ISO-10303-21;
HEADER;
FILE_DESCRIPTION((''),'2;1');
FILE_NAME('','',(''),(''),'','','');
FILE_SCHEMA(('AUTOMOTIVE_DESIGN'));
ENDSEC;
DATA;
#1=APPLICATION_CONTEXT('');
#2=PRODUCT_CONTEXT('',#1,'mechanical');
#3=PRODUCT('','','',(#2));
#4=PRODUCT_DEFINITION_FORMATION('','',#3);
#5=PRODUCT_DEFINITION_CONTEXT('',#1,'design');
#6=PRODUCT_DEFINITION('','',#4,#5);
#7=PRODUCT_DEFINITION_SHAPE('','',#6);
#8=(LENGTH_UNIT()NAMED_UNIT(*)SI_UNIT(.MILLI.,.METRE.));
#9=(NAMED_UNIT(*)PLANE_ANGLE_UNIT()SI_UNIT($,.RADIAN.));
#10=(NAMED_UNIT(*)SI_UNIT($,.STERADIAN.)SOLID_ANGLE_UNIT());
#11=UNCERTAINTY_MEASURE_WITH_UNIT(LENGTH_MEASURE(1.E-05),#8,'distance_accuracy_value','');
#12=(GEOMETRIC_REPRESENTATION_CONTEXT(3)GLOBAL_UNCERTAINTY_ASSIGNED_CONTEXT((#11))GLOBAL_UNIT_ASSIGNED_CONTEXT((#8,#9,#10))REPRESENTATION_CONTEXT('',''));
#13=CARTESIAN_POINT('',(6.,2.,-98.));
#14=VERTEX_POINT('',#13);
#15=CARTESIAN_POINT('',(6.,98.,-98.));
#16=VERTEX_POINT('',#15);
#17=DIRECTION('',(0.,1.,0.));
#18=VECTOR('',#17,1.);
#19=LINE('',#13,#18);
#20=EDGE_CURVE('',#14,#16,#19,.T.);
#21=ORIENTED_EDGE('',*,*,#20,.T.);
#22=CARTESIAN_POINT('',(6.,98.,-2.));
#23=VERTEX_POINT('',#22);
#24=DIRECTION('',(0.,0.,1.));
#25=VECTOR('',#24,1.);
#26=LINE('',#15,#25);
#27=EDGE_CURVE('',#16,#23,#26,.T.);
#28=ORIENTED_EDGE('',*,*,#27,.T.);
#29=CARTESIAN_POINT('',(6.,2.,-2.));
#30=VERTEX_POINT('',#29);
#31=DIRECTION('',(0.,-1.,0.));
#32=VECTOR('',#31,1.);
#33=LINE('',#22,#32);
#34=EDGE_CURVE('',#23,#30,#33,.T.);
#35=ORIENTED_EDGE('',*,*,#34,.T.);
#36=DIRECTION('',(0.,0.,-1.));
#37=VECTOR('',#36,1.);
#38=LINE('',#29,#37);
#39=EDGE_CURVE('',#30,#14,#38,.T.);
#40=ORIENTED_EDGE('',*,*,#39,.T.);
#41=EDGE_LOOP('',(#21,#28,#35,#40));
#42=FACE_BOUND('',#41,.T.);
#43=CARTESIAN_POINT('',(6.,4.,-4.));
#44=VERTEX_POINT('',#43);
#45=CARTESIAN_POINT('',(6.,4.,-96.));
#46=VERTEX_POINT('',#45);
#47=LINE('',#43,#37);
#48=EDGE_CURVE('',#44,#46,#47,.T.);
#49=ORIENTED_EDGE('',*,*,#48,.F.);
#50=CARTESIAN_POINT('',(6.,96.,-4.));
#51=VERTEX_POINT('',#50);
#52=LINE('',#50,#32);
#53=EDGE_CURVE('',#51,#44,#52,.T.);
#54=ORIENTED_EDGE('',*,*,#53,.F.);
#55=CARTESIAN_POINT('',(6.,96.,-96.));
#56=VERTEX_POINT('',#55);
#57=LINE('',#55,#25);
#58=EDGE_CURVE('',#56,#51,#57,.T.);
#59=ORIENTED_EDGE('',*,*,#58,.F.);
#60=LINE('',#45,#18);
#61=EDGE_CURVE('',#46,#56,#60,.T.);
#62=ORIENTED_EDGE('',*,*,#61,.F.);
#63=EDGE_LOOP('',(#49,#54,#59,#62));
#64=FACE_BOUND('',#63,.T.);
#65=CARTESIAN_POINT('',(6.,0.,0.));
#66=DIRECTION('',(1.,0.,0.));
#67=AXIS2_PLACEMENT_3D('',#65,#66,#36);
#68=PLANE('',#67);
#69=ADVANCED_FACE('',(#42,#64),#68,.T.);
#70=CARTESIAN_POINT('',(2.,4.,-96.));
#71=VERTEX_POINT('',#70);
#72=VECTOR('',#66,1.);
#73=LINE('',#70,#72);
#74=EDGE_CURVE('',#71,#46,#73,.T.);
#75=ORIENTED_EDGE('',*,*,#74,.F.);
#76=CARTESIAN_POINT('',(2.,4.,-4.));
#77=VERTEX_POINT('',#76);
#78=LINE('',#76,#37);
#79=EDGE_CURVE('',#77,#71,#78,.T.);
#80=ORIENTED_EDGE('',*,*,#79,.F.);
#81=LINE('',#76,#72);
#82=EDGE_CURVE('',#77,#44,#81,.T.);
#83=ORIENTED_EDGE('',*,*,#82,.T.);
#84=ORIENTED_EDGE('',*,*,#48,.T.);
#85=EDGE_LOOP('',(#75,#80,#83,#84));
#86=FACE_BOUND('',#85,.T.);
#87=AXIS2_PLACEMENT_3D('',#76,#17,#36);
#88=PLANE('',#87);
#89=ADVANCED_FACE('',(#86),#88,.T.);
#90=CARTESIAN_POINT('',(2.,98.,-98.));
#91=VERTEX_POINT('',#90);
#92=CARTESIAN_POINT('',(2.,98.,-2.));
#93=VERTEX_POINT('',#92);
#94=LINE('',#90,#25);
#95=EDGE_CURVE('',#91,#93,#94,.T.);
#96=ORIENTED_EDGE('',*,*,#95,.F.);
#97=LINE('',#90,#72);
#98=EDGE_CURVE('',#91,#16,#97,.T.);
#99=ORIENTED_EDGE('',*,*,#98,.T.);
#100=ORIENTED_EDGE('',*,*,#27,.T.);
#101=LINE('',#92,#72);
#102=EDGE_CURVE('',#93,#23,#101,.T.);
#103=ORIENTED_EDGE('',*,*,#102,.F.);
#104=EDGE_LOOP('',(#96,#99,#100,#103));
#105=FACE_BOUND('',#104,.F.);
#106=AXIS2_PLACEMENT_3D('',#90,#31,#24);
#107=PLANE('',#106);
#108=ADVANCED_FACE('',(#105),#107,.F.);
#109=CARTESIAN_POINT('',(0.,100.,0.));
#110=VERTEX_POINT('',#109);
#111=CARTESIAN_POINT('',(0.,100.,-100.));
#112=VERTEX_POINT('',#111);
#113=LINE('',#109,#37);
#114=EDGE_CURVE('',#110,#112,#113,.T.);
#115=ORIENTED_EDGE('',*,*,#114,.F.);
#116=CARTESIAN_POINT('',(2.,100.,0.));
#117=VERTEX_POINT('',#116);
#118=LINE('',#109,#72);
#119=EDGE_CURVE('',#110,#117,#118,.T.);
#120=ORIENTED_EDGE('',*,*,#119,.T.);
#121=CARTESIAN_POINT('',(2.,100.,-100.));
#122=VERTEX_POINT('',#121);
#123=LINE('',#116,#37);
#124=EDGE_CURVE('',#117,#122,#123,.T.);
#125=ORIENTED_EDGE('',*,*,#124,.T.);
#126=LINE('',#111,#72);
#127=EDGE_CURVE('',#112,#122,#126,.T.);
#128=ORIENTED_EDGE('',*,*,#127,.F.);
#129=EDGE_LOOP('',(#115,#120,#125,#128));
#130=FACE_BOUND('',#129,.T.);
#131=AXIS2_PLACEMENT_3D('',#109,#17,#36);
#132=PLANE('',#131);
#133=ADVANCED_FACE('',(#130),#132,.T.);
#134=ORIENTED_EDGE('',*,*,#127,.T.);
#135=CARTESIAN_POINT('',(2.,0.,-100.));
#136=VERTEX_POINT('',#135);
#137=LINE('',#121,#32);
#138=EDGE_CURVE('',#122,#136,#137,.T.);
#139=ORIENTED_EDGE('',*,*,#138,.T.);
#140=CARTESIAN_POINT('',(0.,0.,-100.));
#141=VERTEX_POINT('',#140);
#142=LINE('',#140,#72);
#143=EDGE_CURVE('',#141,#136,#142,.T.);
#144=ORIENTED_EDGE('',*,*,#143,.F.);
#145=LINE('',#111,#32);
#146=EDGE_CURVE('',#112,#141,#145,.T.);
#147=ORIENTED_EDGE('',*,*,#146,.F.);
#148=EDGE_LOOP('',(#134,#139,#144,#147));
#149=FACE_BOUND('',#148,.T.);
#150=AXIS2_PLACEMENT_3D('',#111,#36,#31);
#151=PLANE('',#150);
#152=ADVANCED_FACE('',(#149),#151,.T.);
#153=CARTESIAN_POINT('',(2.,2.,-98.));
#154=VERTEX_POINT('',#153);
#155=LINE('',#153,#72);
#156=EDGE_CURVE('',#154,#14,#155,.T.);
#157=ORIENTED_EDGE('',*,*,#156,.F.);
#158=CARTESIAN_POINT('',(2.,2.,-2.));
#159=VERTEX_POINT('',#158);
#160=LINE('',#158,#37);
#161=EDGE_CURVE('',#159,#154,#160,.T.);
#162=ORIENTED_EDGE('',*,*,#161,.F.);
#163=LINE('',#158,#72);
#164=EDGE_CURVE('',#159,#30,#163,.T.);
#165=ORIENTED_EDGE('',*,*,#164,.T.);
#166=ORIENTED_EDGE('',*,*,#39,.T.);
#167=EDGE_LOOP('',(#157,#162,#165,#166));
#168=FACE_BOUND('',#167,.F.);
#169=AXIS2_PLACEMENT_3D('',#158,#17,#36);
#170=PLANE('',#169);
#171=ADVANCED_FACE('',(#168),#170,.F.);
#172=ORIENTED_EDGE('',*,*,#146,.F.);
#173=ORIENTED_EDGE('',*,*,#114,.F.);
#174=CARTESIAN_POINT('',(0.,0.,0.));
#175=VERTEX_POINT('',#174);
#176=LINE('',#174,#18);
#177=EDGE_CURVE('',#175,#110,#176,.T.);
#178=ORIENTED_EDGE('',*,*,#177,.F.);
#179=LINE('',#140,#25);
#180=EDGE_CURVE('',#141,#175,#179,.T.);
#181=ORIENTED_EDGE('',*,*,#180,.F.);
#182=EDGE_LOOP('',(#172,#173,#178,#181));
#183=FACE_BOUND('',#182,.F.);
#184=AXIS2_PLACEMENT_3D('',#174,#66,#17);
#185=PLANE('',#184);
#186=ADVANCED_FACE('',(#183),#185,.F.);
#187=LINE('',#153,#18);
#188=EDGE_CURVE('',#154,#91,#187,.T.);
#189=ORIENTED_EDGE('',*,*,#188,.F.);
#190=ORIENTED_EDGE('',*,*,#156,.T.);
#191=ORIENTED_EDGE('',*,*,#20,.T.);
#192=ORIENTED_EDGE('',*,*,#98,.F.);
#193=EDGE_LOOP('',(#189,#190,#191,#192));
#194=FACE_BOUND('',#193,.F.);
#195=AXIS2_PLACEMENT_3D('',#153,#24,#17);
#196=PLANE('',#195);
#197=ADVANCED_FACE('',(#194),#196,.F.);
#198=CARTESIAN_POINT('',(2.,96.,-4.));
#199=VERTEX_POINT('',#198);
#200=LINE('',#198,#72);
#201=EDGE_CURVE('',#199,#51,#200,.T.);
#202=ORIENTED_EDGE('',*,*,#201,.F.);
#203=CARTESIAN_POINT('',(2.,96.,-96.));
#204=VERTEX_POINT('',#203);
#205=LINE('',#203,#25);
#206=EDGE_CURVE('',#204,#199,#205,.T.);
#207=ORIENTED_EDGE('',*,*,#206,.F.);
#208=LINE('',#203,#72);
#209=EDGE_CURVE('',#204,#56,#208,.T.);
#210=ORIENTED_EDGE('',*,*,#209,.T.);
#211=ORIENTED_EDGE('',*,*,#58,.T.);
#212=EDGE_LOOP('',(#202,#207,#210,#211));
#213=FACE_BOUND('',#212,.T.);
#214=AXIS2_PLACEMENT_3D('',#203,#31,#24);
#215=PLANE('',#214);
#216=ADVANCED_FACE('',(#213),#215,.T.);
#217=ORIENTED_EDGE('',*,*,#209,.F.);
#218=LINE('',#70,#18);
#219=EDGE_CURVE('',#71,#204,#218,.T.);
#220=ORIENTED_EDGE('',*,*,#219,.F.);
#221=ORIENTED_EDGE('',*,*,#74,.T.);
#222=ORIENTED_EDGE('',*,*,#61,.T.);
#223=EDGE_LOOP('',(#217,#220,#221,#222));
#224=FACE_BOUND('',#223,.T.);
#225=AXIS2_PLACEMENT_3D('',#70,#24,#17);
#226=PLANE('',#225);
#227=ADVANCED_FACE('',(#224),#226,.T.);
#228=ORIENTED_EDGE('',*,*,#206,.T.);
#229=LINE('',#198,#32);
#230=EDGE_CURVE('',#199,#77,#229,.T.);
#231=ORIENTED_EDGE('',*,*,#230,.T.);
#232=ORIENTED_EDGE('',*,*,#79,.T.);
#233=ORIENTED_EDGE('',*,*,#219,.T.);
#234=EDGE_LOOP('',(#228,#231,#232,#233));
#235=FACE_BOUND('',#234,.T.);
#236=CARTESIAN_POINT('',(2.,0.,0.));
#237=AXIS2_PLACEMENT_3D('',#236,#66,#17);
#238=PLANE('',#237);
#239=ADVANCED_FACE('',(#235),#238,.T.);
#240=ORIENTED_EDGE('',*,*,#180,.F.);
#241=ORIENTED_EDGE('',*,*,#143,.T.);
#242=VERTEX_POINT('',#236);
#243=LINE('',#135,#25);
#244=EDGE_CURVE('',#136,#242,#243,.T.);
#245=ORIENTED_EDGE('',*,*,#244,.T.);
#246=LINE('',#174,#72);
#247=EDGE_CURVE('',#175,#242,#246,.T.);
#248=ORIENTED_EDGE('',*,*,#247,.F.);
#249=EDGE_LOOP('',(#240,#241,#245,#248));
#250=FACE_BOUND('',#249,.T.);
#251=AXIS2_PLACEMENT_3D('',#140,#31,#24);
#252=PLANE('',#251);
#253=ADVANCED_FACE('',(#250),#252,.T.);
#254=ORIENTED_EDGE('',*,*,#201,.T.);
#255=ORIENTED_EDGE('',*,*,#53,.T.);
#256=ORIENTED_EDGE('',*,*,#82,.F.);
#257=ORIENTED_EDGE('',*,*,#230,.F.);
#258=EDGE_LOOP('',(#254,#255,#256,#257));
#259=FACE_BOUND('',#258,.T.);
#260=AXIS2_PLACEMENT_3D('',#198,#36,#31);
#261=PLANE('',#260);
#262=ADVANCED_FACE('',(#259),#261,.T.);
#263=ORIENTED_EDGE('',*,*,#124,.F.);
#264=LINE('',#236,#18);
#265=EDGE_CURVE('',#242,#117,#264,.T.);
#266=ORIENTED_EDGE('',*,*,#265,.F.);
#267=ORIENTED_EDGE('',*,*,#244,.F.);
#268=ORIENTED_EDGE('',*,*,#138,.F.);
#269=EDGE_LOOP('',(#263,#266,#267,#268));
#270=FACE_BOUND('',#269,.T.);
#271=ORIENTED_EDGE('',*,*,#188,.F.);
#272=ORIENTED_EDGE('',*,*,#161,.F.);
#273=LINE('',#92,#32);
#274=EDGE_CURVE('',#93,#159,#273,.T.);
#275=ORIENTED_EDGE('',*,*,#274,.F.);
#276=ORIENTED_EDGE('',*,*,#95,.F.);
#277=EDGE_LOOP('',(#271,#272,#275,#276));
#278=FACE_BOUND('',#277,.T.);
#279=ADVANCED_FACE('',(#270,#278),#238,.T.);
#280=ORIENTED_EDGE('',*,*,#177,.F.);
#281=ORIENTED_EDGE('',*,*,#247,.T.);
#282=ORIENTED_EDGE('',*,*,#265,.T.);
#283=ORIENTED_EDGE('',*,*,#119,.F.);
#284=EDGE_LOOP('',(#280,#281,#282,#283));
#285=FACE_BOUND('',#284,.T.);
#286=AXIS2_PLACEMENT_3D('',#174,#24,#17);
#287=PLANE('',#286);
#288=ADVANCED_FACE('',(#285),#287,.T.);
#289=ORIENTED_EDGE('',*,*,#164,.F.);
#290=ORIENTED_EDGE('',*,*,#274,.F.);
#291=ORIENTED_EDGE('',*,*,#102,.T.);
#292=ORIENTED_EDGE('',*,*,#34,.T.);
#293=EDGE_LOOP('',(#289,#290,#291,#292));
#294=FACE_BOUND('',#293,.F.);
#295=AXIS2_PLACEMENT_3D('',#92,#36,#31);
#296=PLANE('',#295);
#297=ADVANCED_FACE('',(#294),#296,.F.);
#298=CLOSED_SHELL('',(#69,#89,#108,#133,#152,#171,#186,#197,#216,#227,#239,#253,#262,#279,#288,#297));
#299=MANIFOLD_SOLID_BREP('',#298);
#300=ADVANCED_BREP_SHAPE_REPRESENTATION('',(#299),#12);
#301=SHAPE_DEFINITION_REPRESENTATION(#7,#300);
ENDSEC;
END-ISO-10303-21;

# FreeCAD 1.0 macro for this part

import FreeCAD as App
import Part
import Sketcher
from FreeCAD import Vector
Q = App.Units.Quantity

doc = App.newDocument("Part")
body = doc.addObject("PartDesign::Body", "Body")

# Sketch on YZ plane
sketch1 = body.newObject("Sketcher::SketchObject", "Sketch")
sketch1.AttachmentSupport = (doc.getObject("YZ_Plane"), [""])
sketch1.MapMode = "FlatFace"
sketch1.addGeometry([
    Part.LineSegment(Vector(100, 0, 0), Vector(0, 0, 0)),
    Part.LineSegment(Vector(0, 0, 0), Vector(0, -100, 0)),
    Part.LineSegment(Vector(0, -100, 0), Vector(100, -100, 0)),
    Part.LineSegment(Vector(100, -100, 0), Vector(100, 0, 0)),
], False)
sketch1.addConstraint([
    Sketcher.Constraint("Coincident", 0, 2, 1, 1),
    Sketcher.Constraint("Coincident", 1, 2, 2, 1),
    Sketcher.Constraint("Coincident", 2, 2, 3, 1),
    Sketcher.Constraint("Coincident", 3, 2, 0, 1),
    Sketcher.Constraint("Horizontal", 0),
    Sketcher.Constraint("Vertical", 1),
    Sketcher.Constraint("Horizontal", 2),
    Sketcher.Constraint("Vertical", 3),
    Sketcher.Constraint("Coincident", 0, 2, -1, 1),
    Sketcher.Constraint("Equal", 2, 1),
    Sketcher.Constraint("DistanceX", 0, 2, 0, 1, Q("100 mm")),
])
pad1 = body.newObject("PartDesign::Pad", "Pad")
pad1.Profile = sketch1
pad1.Length = 2

# Sketch on YZ plane
sketch2 = body.newObject("Sketcher::SketchObject", "Sketch001")
sketch2.AttachmentSupport = (doc.getObject("YZ_Plane"), [""])
sketch2.MapMode = "FlatFace"
sketch2.AttachmentOffset = App.Placement(Vector(0, 0, 2), App.Rotation())
sketch2.addGeometry([
    Part.LineSegment(Vector(98, -98, 0), Vector(98, -2, 0)),  # 0
    Part.LineSegment(Vector(98, -2, 0), Vector(2, -2, 0)),  # 1
    Part.LineSegment(Vector(2, -2, 0), Vector(2, -98, 0)),  # 2
    Part.LineSegment(Vector(2, -98, 0), Vector(98, -98, 0)),  # 3
    Part.LineSegment(Vector(4, -4, 0), Vector(96, -4, 0)),  # 4
    Part.LineSegment(Vector(96, -4, 0), Vector(96, -96, 0)),  # 5
    Part.LineSegment(Vector(96, -96, 0), Vector(4, -96, 0)),  # 6
    Part.LineSegment(Vector(4, -96, 0), Vector(4, -4, 0)),  # 7
], False)
sketch2.addConstraint([
    Sketcher.Constraint("Coincident", 0, 2, 1, 1),
    Sketcher.Constraint("Coincident", 1, 2, 2, 1),
    Sketcher.Constraint("Coincident", 2, 2, 3, 1),
    Sketcher.Constraint("Coincident", 3, 2, 0, 1),
    Sketcher.Constraint("Coincident", 4, 2, 5, 1),
    Sketcher.Constraint("Coincident", 5, 2, 6, 1),
    Sketcher.Constraint("Coincident", 6, 2, 7, 1),
    Sketcher.Constraint("Coincident", 7, 2, 4, 1),
    Sketcher.Constraint("Vertical", 0),
    Sketcher.Constraint("Horizontal", 1),
    Sketcher.Constraint("Vertical", 2),
    Sketcher.Constraint("Horizontal", 3),
    Sketcher.Constraint("Horizontal", 4),
    Sketcher.Constraint("Vertical", 5),
    Sketcher.Constraint("Horizontal", 6),
    Sketcher.Constraint("Vertical", 7),
    Sketcher.Constraint("Equal", 3, 0),
    Sketcher.Constraint("Equal", 6, 5),
    Sketcher.Constraint("DistanceY", 0, 2, -1, 1, Q("2 mm")),
    Sketcher.Constraint("DistanceX", -1, 1, 1, 2, Q("2 mm")),
    Sketcher.Constraint("DistanceX", 4, 2, 0, 2, Q("2 mm")),
    Sketcher.Constraint("DistanceY", 4, 2, 0, 2, Q("2 mm")),
    Sketcher.Constraint("DistanceY", 3, 2, 5, 2, Q("2 mm")),
    Sketcher.Constraint("DistanceX", 1, 2, 1, 1, Q("96 mm")),
])
pad2 = body.newObject("PartDesign::Pad", "Pad001")
pad2.Profile = sketch2
pad2.Length = 4

doc.recompute()
